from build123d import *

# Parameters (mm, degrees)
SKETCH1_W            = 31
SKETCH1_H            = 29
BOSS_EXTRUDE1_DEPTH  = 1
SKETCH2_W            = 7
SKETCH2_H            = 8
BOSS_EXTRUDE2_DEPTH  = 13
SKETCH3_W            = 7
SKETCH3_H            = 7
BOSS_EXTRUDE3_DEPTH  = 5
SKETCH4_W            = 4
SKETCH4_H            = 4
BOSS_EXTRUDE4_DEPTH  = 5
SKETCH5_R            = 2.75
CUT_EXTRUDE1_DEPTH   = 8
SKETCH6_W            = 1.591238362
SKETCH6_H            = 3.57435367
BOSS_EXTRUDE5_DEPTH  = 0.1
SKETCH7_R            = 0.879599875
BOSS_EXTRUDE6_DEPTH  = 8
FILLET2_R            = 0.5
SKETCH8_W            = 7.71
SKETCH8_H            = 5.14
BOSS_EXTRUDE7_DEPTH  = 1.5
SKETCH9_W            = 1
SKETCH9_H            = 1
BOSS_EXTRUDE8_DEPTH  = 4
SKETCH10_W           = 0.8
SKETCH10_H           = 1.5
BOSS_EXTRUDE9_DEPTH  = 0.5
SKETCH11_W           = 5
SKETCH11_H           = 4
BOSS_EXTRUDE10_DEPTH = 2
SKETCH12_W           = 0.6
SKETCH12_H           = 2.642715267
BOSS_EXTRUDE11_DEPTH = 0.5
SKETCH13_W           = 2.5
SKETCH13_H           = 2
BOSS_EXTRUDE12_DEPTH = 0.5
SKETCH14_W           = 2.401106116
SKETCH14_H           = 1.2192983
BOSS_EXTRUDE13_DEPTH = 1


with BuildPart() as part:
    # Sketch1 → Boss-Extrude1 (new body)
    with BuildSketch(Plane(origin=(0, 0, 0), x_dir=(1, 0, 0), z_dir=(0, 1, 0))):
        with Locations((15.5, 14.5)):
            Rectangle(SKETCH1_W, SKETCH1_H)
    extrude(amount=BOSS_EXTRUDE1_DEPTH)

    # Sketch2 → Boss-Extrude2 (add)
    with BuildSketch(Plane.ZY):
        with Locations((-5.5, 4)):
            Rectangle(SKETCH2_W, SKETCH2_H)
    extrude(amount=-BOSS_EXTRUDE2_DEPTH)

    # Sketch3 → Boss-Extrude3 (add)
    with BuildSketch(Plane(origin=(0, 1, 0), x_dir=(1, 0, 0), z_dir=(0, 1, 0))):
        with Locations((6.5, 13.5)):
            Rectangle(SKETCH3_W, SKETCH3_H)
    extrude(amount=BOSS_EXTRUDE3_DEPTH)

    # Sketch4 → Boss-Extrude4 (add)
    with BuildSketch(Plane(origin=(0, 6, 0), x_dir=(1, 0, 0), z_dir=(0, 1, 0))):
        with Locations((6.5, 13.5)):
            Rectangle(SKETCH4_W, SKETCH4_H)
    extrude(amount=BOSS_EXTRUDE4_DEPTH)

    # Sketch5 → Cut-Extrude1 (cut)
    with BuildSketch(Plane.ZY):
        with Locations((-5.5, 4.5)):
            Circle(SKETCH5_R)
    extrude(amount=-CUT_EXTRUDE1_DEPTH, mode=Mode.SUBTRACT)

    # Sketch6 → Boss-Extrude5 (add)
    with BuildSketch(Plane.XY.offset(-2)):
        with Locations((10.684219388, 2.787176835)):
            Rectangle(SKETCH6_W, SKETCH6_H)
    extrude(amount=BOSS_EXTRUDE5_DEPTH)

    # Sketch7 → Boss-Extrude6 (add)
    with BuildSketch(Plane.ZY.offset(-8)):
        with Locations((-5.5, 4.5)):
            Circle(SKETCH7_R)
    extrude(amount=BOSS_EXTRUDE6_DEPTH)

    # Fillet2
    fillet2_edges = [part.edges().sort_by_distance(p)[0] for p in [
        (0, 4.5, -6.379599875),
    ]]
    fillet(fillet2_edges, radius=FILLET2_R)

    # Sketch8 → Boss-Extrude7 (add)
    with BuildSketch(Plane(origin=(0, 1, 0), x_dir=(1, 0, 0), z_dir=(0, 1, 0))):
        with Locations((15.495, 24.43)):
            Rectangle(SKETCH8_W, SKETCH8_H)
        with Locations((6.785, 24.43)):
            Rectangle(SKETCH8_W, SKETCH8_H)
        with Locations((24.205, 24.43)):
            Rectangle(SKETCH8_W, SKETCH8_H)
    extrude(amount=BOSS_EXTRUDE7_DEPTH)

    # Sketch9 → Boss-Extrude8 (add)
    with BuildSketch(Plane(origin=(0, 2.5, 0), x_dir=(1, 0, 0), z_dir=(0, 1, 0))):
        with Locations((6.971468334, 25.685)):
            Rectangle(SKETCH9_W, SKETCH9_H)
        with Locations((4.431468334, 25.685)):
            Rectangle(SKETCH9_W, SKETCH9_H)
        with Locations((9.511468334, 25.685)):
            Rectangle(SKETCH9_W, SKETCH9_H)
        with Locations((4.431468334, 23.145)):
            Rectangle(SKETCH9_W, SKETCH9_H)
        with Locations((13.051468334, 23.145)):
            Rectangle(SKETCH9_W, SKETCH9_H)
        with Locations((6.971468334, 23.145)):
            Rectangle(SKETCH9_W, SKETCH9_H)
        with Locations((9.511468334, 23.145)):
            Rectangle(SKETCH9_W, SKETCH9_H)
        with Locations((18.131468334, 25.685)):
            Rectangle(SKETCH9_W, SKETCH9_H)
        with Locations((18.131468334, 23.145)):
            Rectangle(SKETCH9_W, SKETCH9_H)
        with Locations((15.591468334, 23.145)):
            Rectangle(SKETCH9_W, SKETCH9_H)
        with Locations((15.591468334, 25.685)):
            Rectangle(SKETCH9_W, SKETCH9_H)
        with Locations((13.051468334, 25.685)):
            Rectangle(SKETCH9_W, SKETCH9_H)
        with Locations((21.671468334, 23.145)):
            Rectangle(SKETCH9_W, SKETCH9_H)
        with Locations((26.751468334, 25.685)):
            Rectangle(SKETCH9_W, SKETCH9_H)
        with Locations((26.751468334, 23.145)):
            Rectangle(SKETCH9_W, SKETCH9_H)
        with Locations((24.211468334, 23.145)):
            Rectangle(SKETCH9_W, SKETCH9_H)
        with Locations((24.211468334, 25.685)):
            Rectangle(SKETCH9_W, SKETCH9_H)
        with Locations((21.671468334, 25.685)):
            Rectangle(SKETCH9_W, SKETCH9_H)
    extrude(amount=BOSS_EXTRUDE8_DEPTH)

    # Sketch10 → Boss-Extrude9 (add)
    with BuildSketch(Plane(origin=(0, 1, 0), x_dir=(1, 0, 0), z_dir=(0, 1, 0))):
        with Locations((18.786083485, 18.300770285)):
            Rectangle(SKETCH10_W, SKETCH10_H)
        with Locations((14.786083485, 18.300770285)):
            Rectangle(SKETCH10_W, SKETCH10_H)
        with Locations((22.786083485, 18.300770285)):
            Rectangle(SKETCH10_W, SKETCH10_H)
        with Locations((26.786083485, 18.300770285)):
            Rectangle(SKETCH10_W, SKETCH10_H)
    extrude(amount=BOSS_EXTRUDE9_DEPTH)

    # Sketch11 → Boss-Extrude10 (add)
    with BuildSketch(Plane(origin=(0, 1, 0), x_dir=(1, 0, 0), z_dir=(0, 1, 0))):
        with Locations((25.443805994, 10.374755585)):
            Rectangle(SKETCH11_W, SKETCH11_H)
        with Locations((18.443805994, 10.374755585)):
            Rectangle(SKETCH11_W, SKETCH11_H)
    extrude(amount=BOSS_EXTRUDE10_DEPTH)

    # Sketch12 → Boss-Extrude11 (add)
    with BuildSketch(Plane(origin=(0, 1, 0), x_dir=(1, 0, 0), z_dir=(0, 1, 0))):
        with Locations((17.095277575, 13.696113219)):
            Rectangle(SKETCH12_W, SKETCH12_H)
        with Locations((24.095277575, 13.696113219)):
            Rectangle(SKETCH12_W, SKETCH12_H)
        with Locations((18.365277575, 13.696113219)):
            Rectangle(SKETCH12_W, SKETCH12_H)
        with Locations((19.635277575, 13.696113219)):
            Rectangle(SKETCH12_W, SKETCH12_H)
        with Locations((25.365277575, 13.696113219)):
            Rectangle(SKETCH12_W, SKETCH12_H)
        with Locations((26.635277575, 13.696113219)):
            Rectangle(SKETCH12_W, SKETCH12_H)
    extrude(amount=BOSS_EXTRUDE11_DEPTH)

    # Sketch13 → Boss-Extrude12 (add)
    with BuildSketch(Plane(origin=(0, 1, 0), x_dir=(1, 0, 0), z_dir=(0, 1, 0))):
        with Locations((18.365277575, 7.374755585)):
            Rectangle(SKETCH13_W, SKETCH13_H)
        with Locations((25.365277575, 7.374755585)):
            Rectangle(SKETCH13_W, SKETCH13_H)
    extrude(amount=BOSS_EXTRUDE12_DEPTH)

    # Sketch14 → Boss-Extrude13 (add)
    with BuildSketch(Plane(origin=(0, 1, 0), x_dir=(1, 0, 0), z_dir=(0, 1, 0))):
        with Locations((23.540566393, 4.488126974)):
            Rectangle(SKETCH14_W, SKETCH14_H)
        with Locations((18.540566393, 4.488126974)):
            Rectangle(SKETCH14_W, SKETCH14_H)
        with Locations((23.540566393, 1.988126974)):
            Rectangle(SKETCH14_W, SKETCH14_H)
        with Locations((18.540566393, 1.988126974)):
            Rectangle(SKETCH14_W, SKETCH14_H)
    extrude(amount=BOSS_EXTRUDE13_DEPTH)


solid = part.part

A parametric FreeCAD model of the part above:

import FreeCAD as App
import Part
import Sketcher


def edges_at(feature, points):
    """Names of the edges that pass closest to the given points."""
    edges = feature.Shape.Edges
    near = lambda p: min(range(len(edges)), key=lambda i: edges[i].distToShape(Part.Vertex(*p))[0])
    return sorted({f"Edge{near(p) + 1}" for p in points})


def add_polygon(sketch, points):
    """Adds a closed chain of lines whose ends are joined by coincident constraints."""
    first, n = sketch.GeometryCount, len(points)
    for a, b in zip(points, points[1:] + points[:1]):
        sketch.addGeometry(Part.LineSegment(App.Vector(*a, 0), App.Vector(*b, 0)), False)
    for i in range(n):
        sketch.addConstraint(Sketcher.Constraint("Coincident", first + i, 2, first + (i + 1) % n, 1))

doc = App.newDocument("Part")
body = doc.addObject("PartDesign::Body", "Body")

sketch1 = body.newObject("Sketcher::SketchObject", "Sketch")
sketch1.AttachmentSupport = (doc.getObject("XZ_Plane"), [""])
sketch1.MapMode = "FlatFace"
add_polygon(sketch1, [(0, -29), (0, 0), (31, 0), (31, -29)])
sketch1.addConstraint([
    Sketcher.Constraint("Vertical", 0),
    Sketcher.Constraint("Horizontal", 1),
    Sketcher.Constraint("Vertical", 2),
    Sketcher.Constraint("Horizontal", 3),
    Sketcher.Constraint("Coincident", 0, 2, -1, 1),
    Sketcher.Constraint("DistanceX", 1, 1, 1, 2, 31.0),
    Sketcher.Constraint("DistanceY", 0, 1, 0, 2, 29.0),
])
pad1 = body.newObject("PartDesign::Pad", "Pad")
pad1.Profile = sketch1
pad1.Length = 1
pad1.Reversed = True

sketch2 = body.newObject("Sketcher::SketchObject", "Sketch001")
sketch2.AttachmentSupport = (doc.getObject("YZ_Plane"), [""])
sketch2.MapMode = "FlatFace"
add_polygon(sketch2, [(8, -9), (0, -9), (0, -2), (8, -2)])
sketch2.addConstraint([
    Sketcher.Constraint("Horizontal", 0),
    Sketcher.Constraint("Vertical", 1),
    Sketcher.Constraint("Horizontal", 2),
    Sketcher.Constraint("Vertical", 3),
    Sketcher.Constraint("PointOnObject", 0, 2, -2),
    Sketcher.Constraint("DistanceX", 0, 2, 0, 1, 8.0),
    Sketcher.Constraint("DistanceY", 1, 1, 1, 2, 7.0),
    Sketcher.Constraint("DistanceY", 0, 2, -1, 1, 9.0),
])
pad2 = body.newObject("PartDesign::Pad", "Pad001")
pad2.Profile = sketch2
pad2.Length = 13

sketch3 = body.newObject("Sketcher::SketchObject", "Sketch002")
sketch3.AttachmentSupport = (doc.getObject("XZ_Plane"), [""])
sketch3.MapMode = "FlatFace"
sketch3.AttachmentOffset = App.Placement(App.Vector(0, 0, -1), App.Rotation())
add_polygon(sketch3, [(3, -17), (3, -10), (10, -10), (10, -17)])
sketch3.addConstraint([
    Sketcher.Constraint("Vertical", 0),
    Sketcher.Constraint("Horizontal", 1),
    Sketcher.Constraint("Vertical", 2),
    Sketcher.Constraint("Horizontal", 3),
    Sketcher.Constraint("Equal", 3, 0),
    Sketcher.Constraint("DistanceX", 1, 1, 1, 2, 7.0),
    Sketcher.Constraint("DistanceX", -1, 1, 0, 2, 3.0),
    Sketcher.Constraint("DistanceY", 0, 2, -1, 1, 10.0),
])
pad3 = body.newObject("PartDesign::Pad", "Pad002")
pad3.Profile = sketch3
pad3.Length = 5
pad3.Reversed = True

sketch4 = body.newObject("Sketcher::SketchObject", "Sketch003")
sketch4.AttachmentSupport = (doc.getObject("XZ_Plane"), [""])
sketch4.MapMode = "FlatFace"
sketch4.AttachmentOffset = App.Placement(App.Vector(0, 0, -6), App.Rotation())
add_polygon(sketch4, [(4.5, -15.5), (4.5, -11.5), (8.5, -11.5), (8.5, -15.5)])
sketch4.addConstraint([
    Sketcher.Constraint("Vertical", 0),
    Sketcher.Constraint("Horizontal", 1),
    Sketcher.Constraint("Vertical", 2),
    Sketcher.Constraint("Horizontal", 3),
    Sketcher.Constraint("Equal", 3, 0),
    Sketcher.Constraint("DistanceX", 1, 1, 1, 2, 4.0),
    Sketcher.Constraint("DistanceX", -1, 1, 0, 2, 4.5),
    Sketcher.Constraint("DistanceY", 0, 2, -1, 1, 11.5),
])
pad4 = body.newObject("PartDesign::Pad", "Pad003")
pad4.Profile = sketch4
pad4.Length = 5
pad4.Reversed = True

sketch5 = body.newObject("Sketcher::SketchObject", "Sketch004")
sketch5.AttachmentSupport = (doc.getObject("YZ_Plane"), [""])
sketch5.MapMode = "FlatFace"
sketch5.addGeometry(Part.Circle(App.Vector(4.5, -5.5, 0), App.Vector(0, 0, 1), 2.75), False)
sketch5.addConstraint([
    Sketcher.Constraint("Diameter", 0, 5.5),
    Sketcher.Constraint("DistanceX", -1, 1, 0, 3, 4.5),
    Sketcher.Constraint("DistanceY", 0, 3, -1, 1, 5.5),
])
pocket1 = body.newObject("PartDesign::Pocket", "Pocket")
pocket1.Profile = sketch5
pocket1.Length = 8
pocket1.Reversed = True

sketch6 = body.newObject("Sketcher::SketchObject", "Sketch005")
sketch6.AttachmentSupport = (doc.getObject("XY_Plane"), [""])
sketch6.MapMode = "FlatFace"
sketch6.AttachmentOffset = App.Placement(App.Vector(0, 0, -2), App.Rotation())
add_polygon(sketch6, [(9.8886, 4.574354), (9.8886, 1), (11.479839, 1), (11.479839, 4.574354)])
sketch6.addConstraint([
    Sketcher.Constraint("Vertical", 0),
    Sketcher.Constraint("Horizontal", 1),
    Sketcher.Constraint("Vertical", 2),
    Sketcher.Constraint("Horizontal", 3),
    Sketcher.Constraint("DistanceY", -1, 1, 0, 2, 1.0),
    Sketcher.Constraint("DistanceX", 1, 1, 1, 2, 1.591238),
    Sketcher.Constraint("DistanceX", -1, 1, 0, 2, 9.8886),
    Sketcher.Constraint("DistanceY", 0, 2, 0, 1, 3.574354),
])
pad5 = body.newObject("PartDesign::Pad", "Pad004")
pad5.Profile = sketch6
pad5.Length = 0.1

sketch7 = body.newObject("Sketcher::SketchObject", "Sketch006")
sketch7.AttachmentSupport = (doc.getObject("YZ_Plane"), [""])
sketch7.MapMode = "FlatFace"
sketch7.AttachmentOffset = App.Placement(App.Vector(0, 0, 8), App.Rotation())
sketch7.addGeometry(Part.Circle(App.Vector(4.5, -5.5, 0), App.Vector(0, 0, 1), 0.8796), False)
sketch7.addConstraint([
    Sketcher.Constraint("Diameter", 0, 1.7592),
    Sketcher.Constraint("DistanceX", -1, 1, 0, 3, 4.5),
    Sketcher.Constraint("DistanceY", 0, 3, -1, 1, 5.5),
])
pad6 = body.newObject("PartDesign::Pad", "Pad005")
pad6.Profile = sketch7
pad6.Length = 8
pad6.Reversed = True
doc.recompute()

fillet = body.newObject("PartDesign::Fillet", "Fillet")
fillet.Base = (pad6, edges_at(pad6, [(0, 4.5, -6.38)]))
fillet.Radius = 0.5

sketch8 = body.newObject("Sketcher::SketchObject", "Sketch007")
sketch8.AttachmentSupport = (doc.getObject("XZ_Plane"), [""])
sketch8.MapMode = "FlatFace"
sketch8.AttachmentOffset = App.Placement(App.Vector(0, 0, -1), App.Rotation())
add_polygon(sketch8, [(11.64, -27), (11.64, -21.86), (19.35, -21.86), (19.35, -27)])
add_polygon(sketch8, [(2.93, -27), (2.93, -21.86), (10.64, -21.86), (10.64, -27)])
add_polygon(sketch8, [(20.35, -27), (20.35, -21.86), (28.06, -21.86), (28.06, -27)])
sketch8.addConstraint([
    Sketcher.Constraint("Vertical", 0),
    Sketcher.Constraint("Horizontal", 1),
    Sketcher.Constraint("Vertical", 2),
    Sketcher.Constraint("Horizontal", 3),
    Sketcher.Constraint("Vertical", 4),
    Sketcher.Constraint("Horizontal", 5),
    Sketcher.Constraint("Vertical", 6),
    Sketcher.Constraint("Horizontal", 7),
    Sketcher.Constraint("Vertical", 8),
    Sketcher.Constraint("Horizontal", 9),
    Sketcher.Constraint("Vertical", 10),
    Sketcher.Constraint("Horizontal", 11),
    Sketcher.Constraint("Horizontal", 1, 2, 4, 2),
    Sketcher.Constraint("Horizontal", 3, 2, 6, 2),
    Sketcher.Constraint("Horizontal", 5, 2, 8, 2),
    Sketcher.Constraint("Horizontal", 7, 2, 10, 2),
    Sketcher.Constraint("Equal", 3, 5),
    Sketcher.Constraint("Equal", 7, 9),
    Sketcher.Constraint("DistanceY", 2, 2, -1, 1, 27.0),
    Sketcher.Constraint("DistanceX", 5, 2, 0, 2, 1.0),
    Sketcher.Constraint("DistanceX", 1, 2, 8, 2, 1.0),
    Sketcher.Constraint("DistanceX", 1, 1, 1, 2, 7.71),
    Sketcher.Constraint("DistanceY", 0, 1, 0, 2, 5.14),
    Sketcher.Constraint("DistanceX", -1, 1, 0, 2, 11.64),
])
pad7 = body.newObject("PartDesign::Pad", "Pad006")
pad7.Profile = sketch8
pad7.Length = 1.5
pad7.Reversed = True

sketch9 = body.newObject("Sketcher::SketchObject", "Sketch008")
sketch9.AttachmentSupport = (doc.getObject("XZ_Plane"), [""])
sketch9.MapMode = "FlatFace"
sketch9.AttachmentOffset = App.Placement(App.Vector(0, 0, -2.5), App.Rotation())
add_polygon(sketch9, [(6.471468, -26.185), (6.471468, -25.185), (7.471468, -25.185), (7.471468, -26.185)])
add_polygon(sketch9, [(3.931468, -26.185), (3.931468, -25.185), (4.931468, -25.185), (4.931468, -26.185)])
add_polygon(sketch9, [(9.011468, -26.185), (9.011468, -25.185), (10.011468, -25.185), (10.011468, -26.185)])
add_polygon(sketch9, [(3.931468, -23.645), (3.931468, -22.645), (4.931468, -22.645), (4.931468, -23.645)])
add_polygon(sketch9, [(12.551468, -23.645), (12.551468, -22.645), (13.551468, -22.645), (13.551468, -23.645)])
add_polygon(sketch9, [(6.471468, -23.645), (6.471468, -22.645), (7.471468, -22.645), (7.471468, -23.645)])
add_polygon(sketch9, [(9.011468, -23.645), (9.011468, -22.645), (10.011468, -22.645), (10.011468, -23.645)])
add_polygon(sketch9, [(17.631468, -26.185), (17.631468, -25.185), (18.631468, -25.185), (18.631468, -26.185)])
add_polygon(sketch9, [(17.631468, -23.645), (17.631468, -22.645), (18.631468, -22.645), (18.631468, -23.645)])
add_polygon(sketch9, [(15.091468, -23.645), (15.091468, -22.645), (16.091468, -22.645), (16.091468, -23.645)])
add_polygon(sketch9, [(15.091468, -26.185), (15.091468, -25.185), (16.091468, -25.185), (16.091468, -26.185)])
add_polygon(sketch9, [(12.551468, -26.185), (12.551468, -25.185), (13.551468, -25.185), (13.551468, -26.185)])
add_polygon(sketch9, [(21.171468, -23.645), (21.171468, -22.645), (22.171468, -22.645), (22.171468, -23.645)])
add_polygon(sketch9, [(26.251468, -26.185), (26.251468, -25.185), (27.251468, -25.185), (27.251468, -26.185)])
add_polygon(sketch9, [(26.251468, -23.645), (26.251468, -22.645), (27.251468, -22.645), (27.251468, -23.645)])
add_polygon(sketch9, [(23.711468, -23.645), (23.711468, -22.645), (24.711468, -22.645), (24.711468, -23.645)])
add_polygon(sketch9, [(23.711468, -26.185), (23.711468, -25.185), (24.711468, -25.185), (24.711468, -26.185)])
add_polygon(sketch9, [(21.171468, -26.185), (21.171468, -25.185), (22.171468, -25.185), (22.171468, -26.185)])
sketch9.addConstraint([
    Sketcher.Constraint("Vertical", 0),
    Sketcher.Constraint("Horizontal", 1),
    Sketcher.Constraint("Vertical", 2),
    Sketcher.Constraint("Horizontal", 3),
    Sketcher.Constraint("Vertical", 4),
    Sketcher.Constraint("Horizontal", 5),
    Sketcher.Constraint("Vertical", 6),
    Sketcher.Constraint("Horizontal", 7),
    Sketcher.Constraint("Vertical", 8),
    Sketcher.Constraint("Horizontal", 9),
    Sketcher.Constraint("Vertical", 10),
    Sketcher.Constraint("Horizontal", 11),
    Sketcher.Constraint("Vertical", 12),
    Sketcher.Constraint("Horizontal", 13),
    Sketcher.Constraint("Vertical", 14),
    Sketcher.Constraint("Horizontal", 15),
    Sketcher.Constraint("Vertical", 16),
    Sketcher.Constraint("Horizontal", 17),
    Sketcher.Constraint("Vertical", 18),
    Sketcher.Constraint("Horizontal", 19),
    Sketcher.Constraint("Vertical", 20),
    Sketcher.Constraint("Horizontal", 21),
    Sketcher.Constraint("Vertical", 22),
    Sketcher.Constraint("Horizontal", 23),
    Sketcher.Constraint("Vertical", 24),
    Sketcher.Constraint("Horizontal", 25),
    Sketcher.Constraint("Vertical", 26),
    Sketcher.Constraint("Horizontal", 27),
    Sketcher.Constraint("Vertical", 28),
    Sketcher.Constraint("Horizontal", 29),
    Sketcher.Constraint("Vertical", 30),
    Sketcher.Constraint("Horizontal", 31),
    Sketcher.Constraint("Vertical", 32),
    Sketcher.Constraint("Horizontal", 33),
    Sketcher.Constraint("Vertical", 34),
    Sketcher.Constraint("Horizontal", 35),
    Sketcher.Constraint("Vertical", 36),
    Sketcher.Constraint("Horizontal", 37),
    Sketcher.Constraint("Vertical", 38),
    Sketcher.Constraint("Horizontal", 39),
    Sketcher.Constraint("Vertical", 40),
    Sketcher.Constraint("Horizontal", 41),
    Sketcher.Constraint("Vertical", 42),
    Sketcher.Constraint("Horizontal", 43),
    Sketcher.Constraint("Vertical", 44),
    Sketcher.Constraint("Horizontal", 45),
    Sketcher.Constraint("Vertical", 46),
    Sketcher.Constraint("Horizontal", 47),
    Sketcher.Constraint("Vertical", 48),
    Sketcher.Constraint("Horizontal", 49),
    Sketcher.Constraint("Vertical", 50),
    Sketcher.Constraint("Horizontal", 51),
    Sketcher.Constraint("Vertical", 52),
    Sketcher.Constraint("Horizontal", 53),
    Sketcher.Constraint("Vertical", 54),
    Sketcher.Constraint("Horizontal", 55),
    Sketcher.Constraint("Vertical", 56),
    Sketcher.Constraint("Horizontal", 57),
    Sketcher.Constraint("Vertical", 58),
    Sketcher.Constraint("Horizontal", 59),
    Sketcher.Constraint("Vertical", 60),
    Sketcher.Constraint("Horizontal", 61),
    Sketcher.Constraint("Vertical", 62),
    Sketcher.Constraint("Horizontal", 63),
    Sketcher.Constraint("Vertical", 64),
    Sketcher.Constraint("Horizontal", 65),
    Sketcher.Constraint("Vertical", 66),
    Sketcher.Constraint("Horizontal", 67),
    Sketcher.Constraint("Vertical", 68),
    Sketcher.Constraint("Horizontal", 69),
    Sketcher.Constraint("Vertical", 70),
    Sketcher.Constraint("Horizontal", 71),
    Sketcher.Constraint("Horizontal", 1, 2, 4, 2),
    Sketcher.Constraint("Horizontal", 3, 2, 6, 2),
    Sketcher.Constraint("Horizontal", 5, 2, 8, 2),
    Sketcher.Constraint("Horizontal", 7, 2, 10, 2),
    Sketcher.Constraint("Horizontal", 13, 2, 16, 2),
    Sketcher.Constraint("Horizontal", 15, 2, 18, 2),
    Sketcher.Constraint("Horizontal", 17, 2, 20, 2),
    Sketcher.Constraint("Horizontal", 19, 2, 22, 2),
    Sketcher.Constraint("Horizontal", 21, 2, 24, 2),
    Sketcher.Constraint("Horizontal", 23, 2, 26, 2),
    Sketcher.Constraint("Horizontal", 9, 2, 28, 2),
    Sketcher.Constraint("Horizontal", 11, 2, 30, 2),
    Sketcher.Constraint("Horizontal", 25, 2, 32, 2),
    Sketcher.Constraint("Horizontal", 27, 2, 34, 2),
    Sketcher.Constraint("Horizontal", 33, 2, 36, 2),
    Sketcher.Constraint("Horizontal", 35, 2, 38, 2),
    Sketcher.Constraint("Horizontal", 29, 2, 40, 2),
    Sketcher.Constraint("Horizontal", 31, 2, 42, 2),
    Sketcher.Constraint("Horizontal", 41, 2, 44, 2),
    Sketcher.Constraint("Horizontal", 43, 2, 46, 2),
    Sketcher.Constraint("Horizontal", 37, 2, 48, 2),
    Sketcher.Constraint("Horizontal", 39, 2, 50, 2),
    Sketcher.Constraint("Horizontal", 45, 2, 52, 2),
    Sketcher.Constraint("Horizontal", 47, 2, 54, 2),
    Sketcher.Constraint("Horizontal", 49, 2, 56, 2),
    Sketcher.Constraint("Horizontal", 51, 2, 58, 2),
    Sketcher.Constraint("Horizontal", 57, 2, 60, 2),
    Sketcher.Constraint("Horizontal", 59, 2, 62, 2),
    Sketcher.Constraint("Horizontal", 53, 2, 64, 2),
    Sketcher.Constraint("Horizontal", 55, 2, 66, 2),
    Sketcher.Constraint("Horizontal", 65, 2, 68, 2),
    Sketcher.Constraint("Horizontal", 67, 2, 70, 2),
    Sketcher.Constraint("Vertical", 7, 2, 12, 2),
    Sketcher.Constraint("Vertical", 6, 2, 13, 2),
    Sketcher.Constraint("Vertical", 3, 2, 20, 2),
    Sketcher.Constraint("Vertical", 2, 2, 21, 2),
    Sketcher.Constraint("Vertical", 11, 2, 24, 2),
    Sketcher.Constraint("Vertical", 10, 2, 25, 2),
    Sketcher.Constraint("Vertical", 31, 2, 32, 2),
    Sketcher.Constraint("Vertical", 30, 2, 33, 2),
    Sketcher.Constraint("Vertical", 39, 2, 40, 2),
    Sketcher.Constraint("Vertical", 38, 2, 41, 2),
    Sketcher.Constraint("Vertical", 19, 2, 44, 2),
    Sketcher.Constraint("Vertical", 18, 2, 45, 2),
    Sketcher.Constraint("Vertical", 55, 2, 56, 2),
    Sketcher.Constraint("Vertical", 54, 2, 57, 2),
    Sketcher.Constraint("Vertical", 63, 2, 64, 2),
    Sketcher.Constraint("Vertical", 62, 2, 65, 2),
    Sketcher.Constraint("Vertical", 51, 2, 68, 2),
    Sketcher.Constraint("Vertical", 50, 2, 69, 2),
    Sketcher.Constraint("Equal", 3, 5),
    Sketcher.Constraint("Equal", 7, 9),
    Sketcher.Constraint("Equal", 15, 17),
    Sketcher.Constraint("Equal", 27, 29),
    Sketcher.Constraint("Equal", 35, 37),
    Sketcher.Constraint("Equal", 47, 49),
    Sketcher.Constraint("Equal", 51, 53),
    Sketcher.Constraint("Equal", 59, 61),
    Sketcher.Constraint("Equal", 71, 0),
    Sketcher.Constraint("Equal", 10, 12),
    Sketcher.Constraint("DistanceX", 1, 1, 1, 2, 1.0),
    Sketcher.Constraint("DistanceY", 0, 2, -1, 1, 25.185),
    Sketcher.Constraint("DistanceY", 12, 2, -1, 1, 22.645),
    Sketcher.Constraint("DistanceX", -1, 1, 0, 2, 6.471468),
    Sketcher.Constraint("DistanceX", -1, 1, 4, 2, 3.931468),
    Sketcher.Constraint("DistanceX", -1, 1, 8, 2, 9.011468),
    Sketcher.Constraint("DistanceX", -1, 1, 16, 2, 12.551468),
    Sketcher.Constraint("DistanceX", -1, 1, 28, 2, 17.631468),
    Sketcher.Constraint("DistanceX", -1, 1, 36, 2, 15.091468),
    Sketcher.Constraint("DistanceX", -1, 1, 48, 2, 21.171468),
    Sketcher.Constraint("DistanceX", -1, 1, 52, 2, 26.251468),
    Sketcher.Constraint("DistanceX", -1, 1, 60, 2, 23.711468),
])
pad8 = body.newObject("PartDesign::Pad", "Pad007")
pad8.Profile = sketch9
pad8.Length = 4
pad8.Reversed = True

sketch10 = body.newObject("Sketcher::SketchObject", "Sketch009")
sketch10.AttachmentSupport = (doc.getObject("XZ_Plane"), [""])
sketch10.MapMode = "FlatFace"
sketch10.AttachmentOffset = App.Placement(App.Vector(0, 0, -1), App.Rotation())
add_polygon(sketch10, [(18.386083, -19.05077), (18.386083, -17.55077), (19.186083, -17.55077), (19.186083, -19.05077)])
add_polygon(sketch10, [(14.386083, -19.05077), (14.386083, -17.55077), (15.186083, -17.55077), (15.186083, -19.05077)])
add_polygon(sketch10, [(22.386083, -19.05077), (22.386083, -17.55077), (23.186083, -17.55077), (23.186083, -19.05077)])
add_polygon(sketch10, [(26.386083, -19.05077), (26.386083, -17.55077), (27.186083, -17.55077), (27.186083, -19.05077)])
sketch10.addConstraint([
    Sketcher.Constraint("Vertical", 0),
    Sketcher.Constraint("Horizontal", 1),
    Sketcher.Constraint("Vertical", 2),
    Sketcher.Constraint("Horizontal", 3),
    Sketcher.Constraint("Vertical", 4),
    Sketcher.Constraint("Horizontal", 5),
    Sketcher.Constraint("Vertical", 6),
    Sketcher.Constraint("Horizontal", 7),
    Sketcher.Constraint("Vertical", 8),
    Sketcher.Constraint("Horizontal", 9),
    Sketcher.Constraint("Vertical", 10),
    Sketcher.Constraint("Horizontal", 11),
    Sketcher.Constraint("Vertical", 12),
    Sketcher.Constraint("Horizontal", 13),
    Sketcher.Constraint("Vertical", 14),
    Sketcher.Constraint("Horizontal", 15),
    Sketcher.Constraint("Horizontal", 1, 2, 4, 2),
    Sketcher.Constraint("Horizontal", 3, 2, 6, 2),
    Sketcher.Constraint("Horizontal", 5, 2, 8, 2),
    Sketcher.Constraint("Horizontal", 7, 2, 10, 2),
    Sketcher.Constraint("Horizontal", 9, 2, 12, 2),
    Sketcher.Constraint("Horizontal", 11, 2, 14, 2),
    Sketcher.Constraint("Equal", 3, 5),
    Sketcher.Constraint("Equal", 7, 9),
    Sketcher.Constraint("Equal", 11, 13),
    Sketcher.Constraint("DistanceX", 1, 1, 1, 2, 0.8),
    Sketcher.Constraint("DistanceY", 0, 1, 0, 2, 1.5),
    Sketcher.Constraint("DistanceX", 4, 2, 0, 2, 4.0),
    Sketcher.Constraint("DistanceX", 0, 2, 8, 2, 4.0),
    Sketcher.Constraint("DistanceX", 8, 2, 12, 2, 4.0),
    Sketcher.Constraint("DistanceY", 0, 2, -1, 1, 17.55077),
    Sketcher.Constraint("DistanceX", -1, 1, 0, 2, 18.386083),
])
pad9 = body.newObject("PartDesign::Pad", "Pad008")
pad9.Profile = sketch10
pad9.Length = 0.5
pad9.Reversed = True

sketch11 = body.newObject("Sketcher::SketchObject", "Sketch010")
sketch11.AttachmentSupport = (doc.getObject("XZ_Plane"), [""])
sketch11.MapMode = "FlatFace"
sketch11.AttachmentOffset = App.Placement(App.Vector(0, 0, -1), App.Rotation())
add_polygon(sketch11, [(22.943806, -12.374756), (22.943806, -8.374756), (27.943806, -8.374756), (27.943806, -12.374756)])
add_polygon(sketch11, [(15.943806, -12.374756), (15.943806, -8.374756), (20.943806, -8.374756), (20.943806, -12.374756)])
sketch11.addConstraint([
    Sketcher.Constraint("Vertical", 0),
    Sketcher.Constraint("Horizontal", 1),
    Sketcher.Constraint("Vertical", 2),
    Sketcher.Constraint("Horizontal", 3),
    Sketcher.Constraint("Vertical", 4),
    Sketcher.Constraint("Horizontal", 5),
    Sketcher.Constraint("Vertical", 6),
    Sketcher.Constraint("Horizontal", 7),
    Sketcher.Constraint("Horizontal", 1, 2, 4, 2),
    Sketcher.Constraint("Horizontal", 3, 2, 6, 2),
    Sketcher.Constraint("Equal", 3, 5),
    Sketcher.Constraint("DistanceX", 1, 1, 1, 2, 5.0),
    Sketcher.Constraint("DistanceY", 0, 1, 0, 2, 4.0),
    Sketcher.Constraint("DistanceX", 4, 2, 0, 2, 7.0),
    Sketcher.Constraint("DistanceX", -1, 1, 0, 2, 22.943806),
    Sketcher.Constraint("DistanceY", 0, 2, -1, 1, 8.374756),
])
pad10 = body.newObject("PartDesign::Pad", "Pad009")
pad10.Profile = sketch11
pad10.Length = 2
pad10.Reversed = True

sketch12 = body.newObject("Sketcher::SketchObject", "Sketch011")
sketch12.AttachmentSupport = (doc.getObject("XZ_Plane"), [""])
sketch12.MapMode = "FlatFace"
sketch12.AttachmentOffset = App.Placement(App.Vector(0, 0, -1), App.Rotation())
add_polygon(sketch12, [(16.795278, -15.017471), (16.795278, -12.374756), (17.395278, -12.374756), (17.395278, -15.017471)])
add_polygon(sketch12, [(23.795278, -15.017471), (23.795278, -12.374756), (24.395278, -12.374756), (24.395278, -15.017471)])
add_polygon(sketch12, [(18.065278, -15.017471), (18.065278, -12.374756), (18.665278, -12.374756), (18.665278, -15.017471)])
add_polygon(sketch12, [(19.335278, -15.017471), (19.335278, -12.374756), (19.935278, -12.374756), (19.935278, -15.017471)])
add_polygon(sketch12, [(25.065278, -15.017471), (25.065278, -12.374756), (25.665278, -12.374756), (25.665278, -15.017471)])
add_polygon(sketch12, [(26.335278, -15.017471), (26.335278, -12.374756), (26.935278, -12.374756), (26.935278, -15.017471)])
sketch12.addConstraint([
    Sketcher.Constraint("Vertical", 0),
    Sketcher.Constraint("Horizontal", 1),
    Sketcher.Constraint("Vertical", 2),
    Sketcher.Constraint("Horizontal", 3),
    Sketcher.Constraint("Vertical", 4),
    Sketcher.Constraint("Horizontal", 5),
    Sketcher.Constraint("Vertical", 6),
    Sketcher.Constraint("Horizontal", 7),
    Sketcher.Constraint("Vertical", 8),
    Sketcher.Constraint("Horizontal", 9),
    Sketcher.Constraint("Vertical", 10),
    Sketcher.Constraint("Horizontal", 11),
    Sketcher.Constraint("Vertical", 12),
    Sketcher.Constraint("Horizontal", 13),
    Sketcher.Constraint("Vertical", 14),
    Sketcher.Constraint("Horizontal", 15),
    Sketcher.Constraint("Vertical", 16),
    Sketcher.Constraint("Horizontal", 17),
    Sketcher.Constraint("Vertical", 18),
    Sketcher.Constraint("Horizontal", 19),
    Sketcher.Constraint("Vertical", 20),
    Sketcher.Constraint("Horizontal", 21),
    Sketcher.Constraint("Vertical", 22),
    Sketcher.Constraint("Horizontal", 23),
    Sketcher.Constraint("Horizontal", 1, 2, 4, 2),
    Sketcher.Constraint("Horizontal", 3, 2, 6, 2),
    Sketcher.Constraint("Horizontal", 5, 2, 8, 2),
    Sketcher.Constraint("Horizontal", 7, 2, 10, 2),
    Sketcher.Constraint("Horizontal", 9, 2, 12, 2),
    Sketcher.Constraint("Horizontal", 11, 2, 14, 2),
    Sketcher.Constraint("Horizontal", 13, 2, 16, 2),
    Sketcher.Constraint("Horizontal", 15, 2, 18, 2),
    Sketcher.Constraint("Horizontal", 17, 2, 20, 2),
    Sketcher.Constraint("Horizontal", 19, 2, 22, 2),
    Sketcher.Constraint("Equal", 3, 5),
    Sketcher.Constraint("Equal", 7, 9),
    Sketcher.Constraint("Equal", 11, 13),
    Sketcher.Constraint("Equal", 15, 17),
    Sketcher.Constraint("Equal", 19, 21),
    Sketcher.Constraint("DistanceX", 1, 1, 1, 2, 0.6),
    Sketcher.Constraint("DistanceX", 0, 2, 4, 2, 7.0),
    Sketcher.Constraint("DistanceX", 1, 2, 8, 2, 0.67),
    Sketcher.Constraint("DistanceX", 9, 2, 12, 2, 0.67),
    Sketcher.Constraint("DistanceX", 5, 2, 16, 2, 0.67),
    Sketcher.Constraint("DistanceX", 17, 2, 20, 2, 0.67),
    Sketcher.Constraint("DistanceY", 0, 1, 0, 2, 2.642715),
    Sketcher.Constraint("DistanceY", 2, 2, -1, 1, 15.017471),
    Sketcher.Constraint("DistanceX", -1, 1, 0, 2, 16.795278),
])
pad11 = body.newObject("PartDesign::Pad", "Pad010")
pad11.Profile = sketch12
pad11.Length = 0.5
pad11.Reversed = True

sketch13 = body.newObject("Sketcher::SketchObject", "Sketch012")
sketch13.AttachmentSupport = (doc.getObject("XZ_Plane"), [""])
sketch13.MapMode = "FlatFace"
sketch13.AttachmentOffset = App.Placement(App.Vector(0, 0, -1), App.Rotation())
add_polygon(sketch13, [(17.115278, -8.374756), (17.115278, -6.374756), (19.615278, -6.374756), (19.615278, -8.374756)])
add_polygon(sketch13, [(24.115278, -8.374756), (24.115278, -6.374756), (26.615278, -6.374756), (26.615278, -8.374756)])
sketch13.addConstraint([
    Sketcher.Constraint("Vertical", 0),
    Sketcher.Constraint("Horizontal", 1),
    Sketcher.Constraint("Vertical", 2),
    Sketcher.Constraint("Horizontal", 3),
    Sketcher.Constraint("Vertical", 4),
    Sketcher.Constraint("Horizontal", 5),
    Sketcher.Constraint("Vertical", 6),
    Sketcher.Constraint("Horizontal", 7),
    Sketcher.Constraint("Horizontal", 1, 2, 4, 2),
    Sketcher.Constraint("Horizontal", 3, 2, 6, 2),
    Sketcher.Constraint("Equal", 3, 5),
    Sketcher.Constraint("DistanceY", 0, 1, 0, 2, 2.0),
    Sketcher.Constraint("DistanceX", 1, 1, 1, 2, 2.5),
    Sketcher.Constraint("DistanceX", 0, 2, 4, 2, 7.0),
    Sketcher.Constraint("DistanceX", -1, 1, 0, 2, 17.115278),
    Sketcher.Constraint("DistanceY", 0, 2, -1, 1, 6.374756),
])
pad12 = body.newObject("PartDesign::Pad", "Pad011")
pad12.Profile = sketch13
pad12.Length = 0.5
pad12.Reversed = True

sketch14 = body.newObject("Sketcher::SketchObject", "Sketch013")
sketch14.AttachmentSupport = (doc.getObject("XZ_Plane"), [""])
sketch14.MapMode = "FlatFace"
sketch14.AttachmentOffset = App.Placement(App.Vector(0, 0, -1), App.Rotation())
add_polygon(sketch14, [(22.340013, -5.097776), (22.340013, -3.878478), (24.741119, -3.878478), (24.741119, -5.097776)])
add_polygon(sketch14, [(17.340013, -5.097776), (17.340013, -3.878478), (19.741119, -3.878478), (19.741119, -5.097776)])
add_polygon(sketch14, [(22.340013, -2.597776), (22.340013, -1.378478), (24.741119, -1.378478), (24.741119, -2.597776)])
add_polygon(sketch14, [(17.340013, -2.597776), (17.340013, -1.378478), (19.741119, -1.378478), (19.741119, -2.597776)])
sketch14.addConstraint([
    Sketcher.Constraint("Vertical", 0),
    Sketcher.Constraint("Horizontal", 1),
    Sketcher.Constraint("Vertical", 2),
    Sketcher.Constraint("Horizontal", 3),
    Sketcher.Constraint("Vertical", 4),
    Sketcher.Constraint("Horizontal", 5),
    Sketcher.Constraint("Vertical", 6),
    Sketcher.Constraint("Horizontal", 7),
    Sketcher.Constraint("Vertical", 8),
    Sketcher.Constraint("Horizontal", 9),
    Sketcher.Constraint("Vertical", 10),
    Sketcher.Constraint("Horizontal", 11),
    Sketcher.Constraint("Vertical", 12),
    Sketcher.Constraint("Horizontal", 13),
    Sketcher.Constraint("Vertical", 14),
    Sketcher.Constraint("Horizontal", 15),
    Sketcher.Constraint("Horizontal", 1, 2, 4, 2),
    Sketcher.Constraint("Horizontal", 3, 2, 6, 2),
    Sketcher.Constraint("Horizontal", 9, 2, 12, 2),
    Sketcher.Constraint("Horizontal", 11, 2, 14, 2),
    Sketcher.Constraint("Vertical", 3, 2, 8, 2),
    Sketcher.Constraint("Vertical", 2, 2, 9, 2),
    Sketcher.Constraint("Vertical", 7, 2, 12, 2),
    Sketcher.Constraint("Vertical", 6, 2, 13, 2),
    Sketcher.Constraint("Equal", 3, 5),
    Sketcher.Constraint("Equal", 6, 8),
    Sketcher.Constraint("DistanceX", 4, 2, 0, 2, 5.0),
    Sketcher.Constraint("DistanceY", 0, 2, 8, 2, 2.5),
    Sketcher.Constraint("DistanceY", 0, 1, 0, 2, 1.219298),
    Sketcher.Constraint("DistanceX", 1, 1, 1, 2, 2.401106),
    Sketcher.Constraint("DistanceX", -1, 1, 1, 2, 24.741119),
    Sketcher.Constraint("DistanceY", 0, 2, -1, 1, 3.878478),
])
pad13 = body.newObject("PartDesign::Pad", "Pad012")
pad13.Profile = sketch14
pad13.Length = 1
pad13.Reversed = True

doc.recompute()
